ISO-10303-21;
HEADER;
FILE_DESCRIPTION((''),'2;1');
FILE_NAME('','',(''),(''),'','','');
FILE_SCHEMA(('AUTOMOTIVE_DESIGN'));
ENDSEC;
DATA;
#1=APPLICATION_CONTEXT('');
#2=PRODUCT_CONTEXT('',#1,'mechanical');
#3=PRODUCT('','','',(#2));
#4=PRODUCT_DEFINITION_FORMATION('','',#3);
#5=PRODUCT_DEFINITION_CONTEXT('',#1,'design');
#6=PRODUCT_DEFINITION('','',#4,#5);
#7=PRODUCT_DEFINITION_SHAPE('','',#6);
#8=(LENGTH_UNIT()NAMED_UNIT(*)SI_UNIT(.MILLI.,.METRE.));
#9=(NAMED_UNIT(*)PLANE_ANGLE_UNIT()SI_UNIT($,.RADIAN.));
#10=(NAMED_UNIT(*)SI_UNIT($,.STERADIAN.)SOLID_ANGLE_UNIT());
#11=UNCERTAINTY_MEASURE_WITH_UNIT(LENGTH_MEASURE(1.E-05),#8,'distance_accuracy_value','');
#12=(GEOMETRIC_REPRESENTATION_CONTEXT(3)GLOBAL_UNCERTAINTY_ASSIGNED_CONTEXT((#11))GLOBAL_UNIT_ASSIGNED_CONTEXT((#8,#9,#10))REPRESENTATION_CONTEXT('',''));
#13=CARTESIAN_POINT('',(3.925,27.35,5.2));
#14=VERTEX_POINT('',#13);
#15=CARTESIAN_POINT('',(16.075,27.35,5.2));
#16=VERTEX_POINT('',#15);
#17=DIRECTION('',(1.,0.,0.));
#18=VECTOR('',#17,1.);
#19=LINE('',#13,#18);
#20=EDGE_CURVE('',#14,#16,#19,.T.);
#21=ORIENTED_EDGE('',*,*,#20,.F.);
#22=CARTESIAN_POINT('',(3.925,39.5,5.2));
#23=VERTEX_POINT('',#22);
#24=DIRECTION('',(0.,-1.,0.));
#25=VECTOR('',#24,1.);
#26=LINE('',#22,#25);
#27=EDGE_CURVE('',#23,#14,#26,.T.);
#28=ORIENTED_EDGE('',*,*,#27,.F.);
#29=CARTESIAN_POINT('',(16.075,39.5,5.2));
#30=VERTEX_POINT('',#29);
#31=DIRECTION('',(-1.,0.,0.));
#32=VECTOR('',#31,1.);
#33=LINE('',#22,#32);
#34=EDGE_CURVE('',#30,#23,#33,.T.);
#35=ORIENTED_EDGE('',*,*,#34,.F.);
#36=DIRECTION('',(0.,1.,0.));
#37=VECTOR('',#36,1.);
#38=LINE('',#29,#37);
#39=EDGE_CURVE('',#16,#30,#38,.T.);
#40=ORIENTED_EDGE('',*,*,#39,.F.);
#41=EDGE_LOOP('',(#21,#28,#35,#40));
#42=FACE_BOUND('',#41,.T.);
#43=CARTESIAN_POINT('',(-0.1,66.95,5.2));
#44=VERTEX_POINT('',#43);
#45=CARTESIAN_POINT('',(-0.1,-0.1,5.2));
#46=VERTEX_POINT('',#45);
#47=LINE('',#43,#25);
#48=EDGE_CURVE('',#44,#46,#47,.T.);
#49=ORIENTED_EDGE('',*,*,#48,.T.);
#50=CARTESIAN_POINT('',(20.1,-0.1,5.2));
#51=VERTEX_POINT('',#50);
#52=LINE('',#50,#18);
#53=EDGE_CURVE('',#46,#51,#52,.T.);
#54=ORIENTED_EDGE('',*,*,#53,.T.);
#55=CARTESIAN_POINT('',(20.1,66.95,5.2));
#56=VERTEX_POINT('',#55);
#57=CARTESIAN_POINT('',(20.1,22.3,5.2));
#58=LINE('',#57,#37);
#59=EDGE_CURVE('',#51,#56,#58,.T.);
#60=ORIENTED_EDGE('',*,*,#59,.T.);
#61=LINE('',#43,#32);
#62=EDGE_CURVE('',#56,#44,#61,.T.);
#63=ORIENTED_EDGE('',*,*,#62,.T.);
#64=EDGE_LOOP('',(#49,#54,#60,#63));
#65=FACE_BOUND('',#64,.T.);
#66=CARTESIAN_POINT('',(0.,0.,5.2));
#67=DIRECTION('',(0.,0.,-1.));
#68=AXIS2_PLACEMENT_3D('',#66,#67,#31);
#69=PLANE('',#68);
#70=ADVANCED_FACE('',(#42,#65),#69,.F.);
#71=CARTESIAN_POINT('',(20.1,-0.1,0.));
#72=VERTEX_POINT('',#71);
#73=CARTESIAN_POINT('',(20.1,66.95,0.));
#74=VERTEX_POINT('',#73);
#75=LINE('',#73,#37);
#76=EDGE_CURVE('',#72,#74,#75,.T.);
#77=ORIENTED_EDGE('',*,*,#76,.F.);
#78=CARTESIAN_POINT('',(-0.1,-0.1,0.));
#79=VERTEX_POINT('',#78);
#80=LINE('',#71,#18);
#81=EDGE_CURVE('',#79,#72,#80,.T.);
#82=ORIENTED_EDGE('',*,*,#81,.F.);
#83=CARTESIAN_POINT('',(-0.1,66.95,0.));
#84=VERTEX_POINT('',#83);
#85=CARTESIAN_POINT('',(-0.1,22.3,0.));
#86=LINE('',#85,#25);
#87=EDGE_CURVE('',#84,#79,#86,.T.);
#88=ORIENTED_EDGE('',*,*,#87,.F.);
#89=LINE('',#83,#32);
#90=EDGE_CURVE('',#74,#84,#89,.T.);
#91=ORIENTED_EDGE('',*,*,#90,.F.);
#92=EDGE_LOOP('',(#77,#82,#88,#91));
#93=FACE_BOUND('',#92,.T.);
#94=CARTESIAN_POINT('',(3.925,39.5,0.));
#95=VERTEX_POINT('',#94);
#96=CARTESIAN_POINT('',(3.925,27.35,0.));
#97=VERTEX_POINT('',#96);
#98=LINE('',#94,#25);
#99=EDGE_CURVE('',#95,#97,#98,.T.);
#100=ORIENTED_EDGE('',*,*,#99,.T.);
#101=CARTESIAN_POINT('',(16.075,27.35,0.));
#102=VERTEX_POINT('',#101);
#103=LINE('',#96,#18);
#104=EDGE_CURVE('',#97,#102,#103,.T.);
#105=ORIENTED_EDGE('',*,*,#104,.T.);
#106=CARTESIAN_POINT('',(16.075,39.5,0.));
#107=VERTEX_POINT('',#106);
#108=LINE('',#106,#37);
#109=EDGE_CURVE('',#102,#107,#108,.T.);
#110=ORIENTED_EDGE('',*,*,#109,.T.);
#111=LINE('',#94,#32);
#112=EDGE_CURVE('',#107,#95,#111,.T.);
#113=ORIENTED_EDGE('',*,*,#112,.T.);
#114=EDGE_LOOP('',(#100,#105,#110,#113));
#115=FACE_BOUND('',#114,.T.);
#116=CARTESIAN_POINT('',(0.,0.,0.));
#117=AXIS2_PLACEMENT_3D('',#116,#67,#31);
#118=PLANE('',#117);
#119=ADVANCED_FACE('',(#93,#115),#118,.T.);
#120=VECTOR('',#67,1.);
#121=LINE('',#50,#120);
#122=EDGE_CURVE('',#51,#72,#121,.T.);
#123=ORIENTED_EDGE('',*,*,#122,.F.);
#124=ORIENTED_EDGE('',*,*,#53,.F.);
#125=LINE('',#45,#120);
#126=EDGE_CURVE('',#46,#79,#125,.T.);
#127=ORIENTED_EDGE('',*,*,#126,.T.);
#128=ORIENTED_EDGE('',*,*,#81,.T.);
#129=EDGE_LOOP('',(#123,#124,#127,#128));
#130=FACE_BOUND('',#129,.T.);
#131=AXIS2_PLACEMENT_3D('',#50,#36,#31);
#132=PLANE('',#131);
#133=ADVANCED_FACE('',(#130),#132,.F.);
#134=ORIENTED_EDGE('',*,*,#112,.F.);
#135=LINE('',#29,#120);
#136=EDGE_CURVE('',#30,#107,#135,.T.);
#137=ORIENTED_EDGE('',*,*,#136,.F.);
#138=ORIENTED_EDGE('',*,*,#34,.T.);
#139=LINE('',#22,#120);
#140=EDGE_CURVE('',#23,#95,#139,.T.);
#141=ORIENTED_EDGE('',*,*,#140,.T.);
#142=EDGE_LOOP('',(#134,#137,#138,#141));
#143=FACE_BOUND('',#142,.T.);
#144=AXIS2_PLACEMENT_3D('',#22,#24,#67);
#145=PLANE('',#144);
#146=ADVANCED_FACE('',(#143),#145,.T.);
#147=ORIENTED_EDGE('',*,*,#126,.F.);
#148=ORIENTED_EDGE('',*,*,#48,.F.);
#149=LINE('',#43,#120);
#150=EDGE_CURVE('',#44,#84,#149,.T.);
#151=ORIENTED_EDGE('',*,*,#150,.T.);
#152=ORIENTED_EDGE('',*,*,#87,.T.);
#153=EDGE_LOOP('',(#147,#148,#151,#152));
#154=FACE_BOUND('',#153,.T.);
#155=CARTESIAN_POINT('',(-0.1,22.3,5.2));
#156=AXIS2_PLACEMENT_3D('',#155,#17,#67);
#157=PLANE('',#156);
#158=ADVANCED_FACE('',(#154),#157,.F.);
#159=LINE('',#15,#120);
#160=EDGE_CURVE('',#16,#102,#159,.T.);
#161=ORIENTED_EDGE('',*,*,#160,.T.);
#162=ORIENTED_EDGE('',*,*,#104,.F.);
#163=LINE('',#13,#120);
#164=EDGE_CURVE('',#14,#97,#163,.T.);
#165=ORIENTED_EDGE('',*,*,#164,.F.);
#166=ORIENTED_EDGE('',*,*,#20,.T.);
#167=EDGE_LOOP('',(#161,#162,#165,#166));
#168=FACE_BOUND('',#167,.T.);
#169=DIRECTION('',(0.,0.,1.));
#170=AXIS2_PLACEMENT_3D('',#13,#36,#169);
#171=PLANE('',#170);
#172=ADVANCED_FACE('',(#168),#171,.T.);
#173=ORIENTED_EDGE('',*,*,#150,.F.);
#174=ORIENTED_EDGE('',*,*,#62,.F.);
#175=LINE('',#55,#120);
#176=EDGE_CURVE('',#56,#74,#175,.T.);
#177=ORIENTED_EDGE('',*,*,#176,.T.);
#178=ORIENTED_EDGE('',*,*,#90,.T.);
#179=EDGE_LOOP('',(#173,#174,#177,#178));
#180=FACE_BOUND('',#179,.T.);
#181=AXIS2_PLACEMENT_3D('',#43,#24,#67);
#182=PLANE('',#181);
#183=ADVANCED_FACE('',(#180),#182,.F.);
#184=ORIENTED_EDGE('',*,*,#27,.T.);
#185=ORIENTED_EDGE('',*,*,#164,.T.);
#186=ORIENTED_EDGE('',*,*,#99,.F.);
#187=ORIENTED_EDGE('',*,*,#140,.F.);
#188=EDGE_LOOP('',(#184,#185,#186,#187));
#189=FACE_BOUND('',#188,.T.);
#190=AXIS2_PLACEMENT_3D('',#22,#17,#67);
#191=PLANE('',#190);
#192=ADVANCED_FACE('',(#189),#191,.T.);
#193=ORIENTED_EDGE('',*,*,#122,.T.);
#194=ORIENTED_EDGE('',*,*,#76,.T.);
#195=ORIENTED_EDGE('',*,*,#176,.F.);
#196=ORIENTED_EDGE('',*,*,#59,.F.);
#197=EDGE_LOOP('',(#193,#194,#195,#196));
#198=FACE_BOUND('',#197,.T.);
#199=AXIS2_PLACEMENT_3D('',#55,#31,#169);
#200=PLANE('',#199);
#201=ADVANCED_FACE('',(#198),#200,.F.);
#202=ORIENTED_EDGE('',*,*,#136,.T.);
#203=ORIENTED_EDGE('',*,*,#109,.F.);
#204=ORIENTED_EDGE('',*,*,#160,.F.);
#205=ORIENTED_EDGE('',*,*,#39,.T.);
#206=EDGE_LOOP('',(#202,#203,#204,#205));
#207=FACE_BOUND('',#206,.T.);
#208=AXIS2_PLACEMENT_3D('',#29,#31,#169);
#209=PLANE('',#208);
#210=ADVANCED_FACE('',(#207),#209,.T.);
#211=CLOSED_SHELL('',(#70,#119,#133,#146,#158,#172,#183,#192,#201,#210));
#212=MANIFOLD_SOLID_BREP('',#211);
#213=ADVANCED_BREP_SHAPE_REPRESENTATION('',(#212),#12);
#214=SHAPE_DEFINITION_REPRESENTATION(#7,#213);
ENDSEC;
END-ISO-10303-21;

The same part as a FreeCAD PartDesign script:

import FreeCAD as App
import Part
import Sketcher
from FreeCAD import Vector

doc = App.newDocument("Part")
params = doc.addObject("Spreadsheet::Sheet", "Params")
for row, (alias, value) in enumerate([
    ("sketch1_width", "20.2 mm"),
    ("sketch1_width2", "12.15 mm"),
    ("sketch1_height", "67.05 mm"),
    ("pad1_length", "5.2 mm"),
], start=1):
    params.set(f"A{row}", alias)
    params.set(f"B{row}", "=" + value)
    params.setAlias(f"B{row}", alias)

body = doc.addObject("PartDesign::Body", "Body")

# Sketch on XY plane
sketch1 = body.newObject("Sketcher::SketchObject", "Sketch")
sketch1.AttachmentSupport = (doc.getObject("XY_Plane"), [""])
sketch1.MapMode = "FlatFace"
sketch1.addGeometry(Part.LineSegment(Vector(20, 67, 0), Vector(0, 67, 0)), False)
sketch1.addGeometry(Part.LineSegment(Vector(0, 67, 0), Vector(0, 0, 0)), False)
sketch1.addGeometry(Part.LineSegment(Vector(0, 0, 0), Vector(20, 0, 0)), False)
sketch1.addGeometry(Part.LineSegment(Vector(20, 0, 0), Vector(20, 67, 0)), False)
sketch1.addGeometry(Part.LineSegment(Vector(4, 27, 0), Vector(4, 40, 0)), False)
sketch1.addGeometry(Part.LineSegment(Vector(4, 40, 0), Vector(16, 40, 0)), False)
sketch1.addGeometry(Part.LineSegment(Vector(16, 40, 0), Vector(16, 27, 0)), False)
sketch1.addGeometry(Part.LineSegment(Vector(16, 27, 0), Vector(4, 27, 0)), False)
sketch1.addConstraint(Sketcher.Constraint("Coincident", 0, 2, 1, 1))
sketch1.addConstraint(Sketcher.Constraint("Coincident", 1, 2, 2, 1))
sketch1.addConstraint(Sketcher.Constraint("Coincident", 2, 2, 3, 1))
sketch1.addConstraint(Sketcher.Constraint("Coincident", 3, 2, 0, 1))
sketch1.addConstraint(Sketcher.Constraint("Coincident", 4, 2, 5, 1))
sketch1.addConstraint(Sketcher.Constraint("Coincident", 5, 2, 6, 1))
sketch1.addConstraint(Sketcher.Constraint("Coincident", 6, 2, 7, 1))
sketch1.addConstraint(Sketcher.Constraint("Coincident", 7, 2, 4, 1))
sketch1.addConstraint(Sketcher.Constraint("Horizontal", 0))
sketch1.addConstraint(Sketcher.Constraint("Vertical", 1))
sketch1.addConstraint(Sketcher.Constraint("Horizontal", 2))
sketch1.addConstraint(Sketcher.Constraint("Vertical", 3))
sketch1.addConstraint(Sketcher.Constraint("Vertical", 4))
sketch1.addConstraint(Sketcher.Constraint("Horizontal", 5))
sketch1.addConstraint(Sketcher.Constraint("Vertical", 6))
sketch1.addConstraint(Sketcher.Constraint("Horizontal", 7))
sketch1.addConstraint(Sketcher.Constraint("Equal", 7, 4))
sketch1.addConstraint(Sketcher.Constraint("DistanceX", 0, 2, 0, 1, 20.2))
sketch1.addConstraint(Sketcher.Constraint("DistanceX", 5, 1, 5, 2, 12.15))
sketch1.addConstraint(Sketcher.Constraint("DistanceY", 1, 2, 1, 1, 67.05))
sketch1.addConstraint(Sketcher.Constraint("DistanceX", 0, 2, -1, 1, 0.1))
sketch1.addConstraint(Sketcher.Constraint("DistanceY", 1, 2, -1, 1, 0.1))
sketch1.addConstraint(Sketcher.Constraint("DistanceY", -1, 1, 4, 2, 39.5))
sketch1.addConstraint(Sketcher.Constraint("DistanceX", -1, 1, 4, 2, 3.925))
sketch1.setExpression("Constraints[17]", "Params.sketch1_width")
sketch1.setExpression("Constraints[18]", "Params.sketch1_width2")
sketch1.setExpression("Constraints[19]", "Params.sketch1_height")
pad1 = body.newObject("PartDesign::Pad", "Pad")
pad1.Profile = sketch1
pad1.setExpression("Length", "Params.pad1_length")

doc.recompute()
